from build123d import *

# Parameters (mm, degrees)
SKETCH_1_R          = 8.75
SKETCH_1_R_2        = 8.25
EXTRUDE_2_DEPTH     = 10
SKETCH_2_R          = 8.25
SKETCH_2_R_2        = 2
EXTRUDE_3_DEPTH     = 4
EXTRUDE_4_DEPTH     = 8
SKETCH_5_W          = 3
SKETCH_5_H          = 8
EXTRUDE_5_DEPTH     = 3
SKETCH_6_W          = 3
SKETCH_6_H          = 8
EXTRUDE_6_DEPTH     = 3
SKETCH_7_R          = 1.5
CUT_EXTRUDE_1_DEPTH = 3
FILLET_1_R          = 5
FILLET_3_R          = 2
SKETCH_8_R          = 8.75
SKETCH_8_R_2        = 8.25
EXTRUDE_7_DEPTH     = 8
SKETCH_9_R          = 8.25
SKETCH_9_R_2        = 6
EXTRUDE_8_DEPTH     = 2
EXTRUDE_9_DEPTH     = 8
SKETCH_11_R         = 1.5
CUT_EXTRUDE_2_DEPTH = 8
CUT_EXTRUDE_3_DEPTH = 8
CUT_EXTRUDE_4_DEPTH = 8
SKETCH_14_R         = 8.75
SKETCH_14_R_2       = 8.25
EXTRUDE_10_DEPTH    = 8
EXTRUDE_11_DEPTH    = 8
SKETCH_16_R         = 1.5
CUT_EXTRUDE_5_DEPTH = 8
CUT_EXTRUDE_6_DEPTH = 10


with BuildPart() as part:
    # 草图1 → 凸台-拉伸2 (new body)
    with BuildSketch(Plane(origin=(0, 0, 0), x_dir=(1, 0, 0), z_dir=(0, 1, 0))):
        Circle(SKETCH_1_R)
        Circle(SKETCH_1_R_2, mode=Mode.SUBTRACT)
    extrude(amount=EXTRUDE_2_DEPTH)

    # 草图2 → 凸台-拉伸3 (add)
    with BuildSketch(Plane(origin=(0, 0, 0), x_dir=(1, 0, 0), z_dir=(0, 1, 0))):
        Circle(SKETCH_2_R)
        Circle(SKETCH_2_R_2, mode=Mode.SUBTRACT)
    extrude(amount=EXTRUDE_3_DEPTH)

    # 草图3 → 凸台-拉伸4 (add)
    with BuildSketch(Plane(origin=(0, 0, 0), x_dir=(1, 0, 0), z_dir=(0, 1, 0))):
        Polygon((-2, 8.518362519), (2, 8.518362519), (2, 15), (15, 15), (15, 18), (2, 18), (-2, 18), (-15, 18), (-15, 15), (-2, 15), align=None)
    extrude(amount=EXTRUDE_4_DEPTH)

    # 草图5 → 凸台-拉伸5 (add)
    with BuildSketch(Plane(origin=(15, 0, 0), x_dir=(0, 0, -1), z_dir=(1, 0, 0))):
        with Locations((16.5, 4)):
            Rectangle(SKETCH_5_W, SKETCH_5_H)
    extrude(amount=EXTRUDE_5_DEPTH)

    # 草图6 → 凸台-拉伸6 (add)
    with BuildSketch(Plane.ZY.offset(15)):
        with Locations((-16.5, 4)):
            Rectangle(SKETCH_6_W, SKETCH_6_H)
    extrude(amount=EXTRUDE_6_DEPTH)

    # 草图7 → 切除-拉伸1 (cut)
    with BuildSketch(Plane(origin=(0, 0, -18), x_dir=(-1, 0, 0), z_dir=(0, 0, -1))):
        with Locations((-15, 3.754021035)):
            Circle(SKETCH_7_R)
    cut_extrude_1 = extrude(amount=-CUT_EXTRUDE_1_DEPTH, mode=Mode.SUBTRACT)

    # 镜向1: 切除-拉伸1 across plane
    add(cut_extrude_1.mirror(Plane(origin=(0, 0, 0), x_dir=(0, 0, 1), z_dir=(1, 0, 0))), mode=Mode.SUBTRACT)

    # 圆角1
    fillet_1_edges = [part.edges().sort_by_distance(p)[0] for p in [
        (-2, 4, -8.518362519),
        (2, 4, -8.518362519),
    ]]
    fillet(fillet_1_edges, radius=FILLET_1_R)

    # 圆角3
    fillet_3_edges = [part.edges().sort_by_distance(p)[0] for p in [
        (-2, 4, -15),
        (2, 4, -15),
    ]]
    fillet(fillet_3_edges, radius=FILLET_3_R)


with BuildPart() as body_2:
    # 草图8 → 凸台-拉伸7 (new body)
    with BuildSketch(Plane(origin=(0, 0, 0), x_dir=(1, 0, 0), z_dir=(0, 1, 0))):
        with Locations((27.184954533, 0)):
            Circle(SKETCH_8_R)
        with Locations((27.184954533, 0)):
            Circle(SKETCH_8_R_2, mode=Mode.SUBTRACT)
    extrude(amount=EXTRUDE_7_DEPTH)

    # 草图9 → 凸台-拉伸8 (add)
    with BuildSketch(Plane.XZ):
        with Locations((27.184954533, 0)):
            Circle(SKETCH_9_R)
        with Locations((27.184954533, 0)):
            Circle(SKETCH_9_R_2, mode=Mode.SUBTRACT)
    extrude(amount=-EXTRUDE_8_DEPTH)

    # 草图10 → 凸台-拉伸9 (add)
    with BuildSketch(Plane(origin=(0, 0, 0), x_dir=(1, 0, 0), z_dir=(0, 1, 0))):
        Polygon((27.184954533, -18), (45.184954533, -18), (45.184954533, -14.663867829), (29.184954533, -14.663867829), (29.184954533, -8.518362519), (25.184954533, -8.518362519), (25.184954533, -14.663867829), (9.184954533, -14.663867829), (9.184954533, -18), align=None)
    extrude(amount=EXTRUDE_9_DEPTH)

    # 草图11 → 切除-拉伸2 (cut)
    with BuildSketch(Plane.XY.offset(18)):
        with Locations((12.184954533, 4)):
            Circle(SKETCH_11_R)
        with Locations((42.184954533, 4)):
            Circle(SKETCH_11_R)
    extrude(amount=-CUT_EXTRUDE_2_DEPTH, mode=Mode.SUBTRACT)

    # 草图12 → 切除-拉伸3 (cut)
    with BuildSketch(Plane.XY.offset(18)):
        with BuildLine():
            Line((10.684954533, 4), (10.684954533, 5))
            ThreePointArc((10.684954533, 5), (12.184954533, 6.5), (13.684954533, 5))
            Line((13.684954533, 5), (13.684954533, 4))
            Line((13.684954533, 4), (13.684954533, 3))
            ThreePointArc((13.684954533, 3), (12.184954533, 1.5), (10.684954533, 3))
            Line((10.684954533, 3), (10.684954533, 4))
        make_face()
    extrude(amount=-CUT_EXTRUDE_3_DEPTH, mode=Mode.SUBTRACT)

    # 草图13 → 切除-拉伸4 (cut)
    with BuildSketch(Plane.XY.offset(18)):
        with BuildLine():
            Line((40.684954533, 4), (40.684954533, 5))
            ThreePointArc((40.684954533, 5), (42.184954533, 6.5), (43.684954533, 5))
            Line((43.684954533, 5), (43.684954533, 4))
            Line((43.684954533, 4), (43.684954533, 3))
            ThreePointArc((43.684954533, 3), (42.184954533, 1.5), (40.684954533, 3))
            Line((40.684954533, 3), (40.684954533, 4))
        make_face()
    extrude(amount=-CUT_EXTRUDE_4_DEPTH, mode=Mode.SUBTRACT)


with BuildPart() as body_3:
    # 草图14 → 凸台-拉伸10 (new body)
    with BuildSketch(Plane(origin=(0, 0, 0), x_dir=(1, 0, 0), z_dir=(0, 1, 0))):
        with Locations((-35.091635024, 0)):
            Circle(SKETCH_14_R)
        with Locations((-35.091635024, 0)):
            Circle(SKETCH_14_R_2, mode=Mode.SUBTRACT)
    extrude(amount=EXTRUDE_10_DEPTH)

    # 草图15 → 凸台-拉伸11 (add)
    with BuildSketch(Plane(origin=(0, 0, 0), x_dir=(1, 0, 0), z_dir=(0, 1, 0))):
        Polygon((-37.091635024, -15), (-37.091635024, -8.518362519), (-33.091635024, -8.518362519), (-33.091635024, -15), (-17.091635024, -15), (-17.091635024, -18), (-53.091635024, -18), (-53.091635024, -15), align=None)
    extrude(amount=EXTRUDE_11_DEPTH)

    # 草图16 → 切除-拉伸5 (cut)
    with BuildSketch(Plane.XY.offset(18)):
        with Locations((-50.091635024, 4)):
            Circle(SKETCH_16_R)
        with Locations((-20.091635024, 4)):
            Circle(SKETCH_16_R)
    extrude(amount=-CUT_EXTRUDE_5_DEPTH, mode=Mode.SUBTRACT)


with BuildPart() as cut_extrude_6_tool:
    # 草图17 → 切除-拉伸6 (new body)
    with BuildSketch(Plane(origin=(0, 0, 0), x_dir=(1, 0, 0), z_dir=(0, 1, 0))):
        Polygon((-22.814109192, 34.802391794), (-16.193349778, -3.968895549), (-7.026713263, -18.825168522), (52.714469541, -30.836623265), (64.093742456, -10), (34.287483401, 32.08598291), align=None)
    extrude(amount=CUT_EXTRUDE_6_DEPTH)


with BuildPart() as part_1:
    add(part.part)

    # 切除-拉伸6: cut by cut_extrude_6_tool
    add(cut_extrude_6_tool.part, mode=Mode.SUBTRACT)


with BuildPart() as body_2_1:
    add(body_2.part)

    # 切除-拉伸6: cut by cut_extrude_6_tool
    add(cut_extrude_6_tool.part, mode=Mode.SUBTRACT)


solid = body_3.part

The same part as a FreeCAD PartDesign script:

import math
import FreeCAD as App
import Part
import Sketcher

V = App.Vector
Q = App.Units.Quantity


def edges_at(feature, points):
    """Names of the edges that pass closest to the given points."""
    edges = feature.Shape.Edges
    near = lambda p: min(range(len(edges)), key=lambda i: edges[i].distToShape(Part.Vertex(*p))[0])
    return sorted({f"Edge{near(p) + 1}" for p in points})


def add_polygon(sketch, points):
    """Adds a closed chain of lines whose ends are joined by coincident constraints."""
    first, n = sketch.GeometryCount, len(points)
    for a, b in zip(points, points[1:] + points[:1]):
        sketch.addGeometry(Part.LineSegment(App.Vector(*a, 0), App.Vector(*b, 0)), False)
    for i in range(n):
        sketch.addConstraint(Sketcher.Constraint("Coincident", first + i, 2, first + (i + 1) % n, 1))

doc = App.newDocument("Part")
body = doc.addObject("PartDesign::Body", "Body")

# Sketch on XZ plane
sketch1 = doc.addObject("Sketcher::SketchObject", "Sketch")
body.addObject(sketch1)
sketch1.AttachmentSupport = (doc.XZ_Plane, [""])
sketch1.MapMode = "FlatFace"
sketch1.addGeometry([
    Part.Circle(V(0, 0, 0), V(0, 0, 1), 9),
    Part.Circle(V(0, 0, 0), V(0, 0, 1), 8),
], False)
sketch1.addConstraint([
    Sketcher.Constraint("Coincident", 0, 3, -1, 1),
    Sketcher.Constraint("Coincident", 1, 3, -1, 1),
    Sketcher.Constraint("Diameter", 0, Q("17.5 mm")),
    Sketcher.Constraint("Diameter", 1, Q("16.5 mm")),
])
pad1 = doc.addObject("PartDesign::Pad", "Pad")
body.addObject(pad1)
pad1.Profile = sketch1
pad1.Length = 10
pad1.Reversed = True

# Sketch on XZ plane
sketch2 = doc.addObject("Sketcher::SketchObject", "Sketch001")
body.addObject(sketch2)
sketch2.AttachmentSupport = (doc.XZ_Plane, [""])
sketch2.MapMode = "FlatFace"
sketch2.addGeometry([
    Part.Circle(V(0, 0, 0), V(0, 0, 1), 8.2),
    Part.Circle(V(0, 0, 0), V(0, 0, 1), 2),
], False)
sketch2.addConstraint([
    Sketcher.Constraint("Coincident", 0, 3, -1, 1),
    Sketcher.Constraint("Coincident", 1, 3, -1, 1),
    Sketcher.Constraint("Diameter", 1, Q("4 mm")),
    Sketcher.Constraint("Diameter", 0, Q("16.5 mm")),
])
pad2 = doc.addObject("PartDesign::Pad", "Pad001")
body.addObject(pad2)
pad2.Profile = sketch2
pad2.Length = 4
pad2.Reversed = True

# Sketch on XZ plane
sketch3 = doc.addObject("Sketcher::SketchObject", "Sketch002")
body.addObject(sketch3)
sketch3.AttachmentSupport = (doc.XZ_Plane, [""])
sketch3.MapMode = "FlatFace"
add_polygon(sketch3, [(-2, -8.5), (2, -8.5), (2, -15), (15, -15), (15, -18), (-15, -18), (-15, -15), (-2, -15)])  # lines 0-7
sketch3.addConstraint([
    Sketcher.Constraint("Horizontal", 0),
    Sketcher.Constraint("Vertical", 1),
    Sketcher.Constraint("Horizontal", 2),
    Sketcher.Constraint("Vertical", 3),
    Sketcher.Constraint("Horizontal", 4),
    Sketcher.Constraint("Vertical", 5),
    Sketcher.Constraint("Horizontal", 6),
    Sketcher.Constraint("Vertical", 7),
    Sketcher.Constraint("Symmetric", 2, 2, 5, 2, -2),
    Sketcher.Constraint("Equal", 2, 6),
    Sketcher.Constraint("DistanceX", 0, 1, 0, 2, Q("4 mm")),
    Sketcher.Constraint("DistanceX", 2, 1, 2, 2, Q("13 mm")),
    Sketcher.Constraint("DistanceY", 3, 2, 3, 1, Q("3 mm")),
    Sketcher.Constraint("DistanceY", 1, 2, -1, 1, Q("15 mm")),
    Sketcher.Constraint("DistanceY", 1, 2, 1, 1, Q("6.481637 mm")),
])
pad3 = doc.addObject("PartDesign::Pad", "Pad002")
body.addObject(pad3)
pad3.Profile = sketch3
pad3.Length = 8
pad3.Reversed = True

# Sketch on YZ plane
sketch4 = doc.addObject("Sketcher::SketchObject", "Sketch003")
body.addObject(sketch4)
sketch4.AttachmentSupport = (doc.YZ_Plane, [""])
sketch4.MapMode = "FlatFace"
sketch4.AttachmentOffset = App.Placement(V(0, 0, 15), App.Rotation())
add_polygon(sketch4, [(8, -15), (0, -15), (0, -18), (8, -18)])  # lines 0-3
sketch4.addConstraint([
    Sketcher.Constraint("Horizontal", 0),
    Sketcher.Constraint("Vertical", 1),
    Sketcher.Constraint("Horizontal", 2),
    Sketcher.Constraint("Vertical", 3),
    Sketcher.Constraint("PointOnObject", 0, 2, -2),
    Sketcher.Constraint("DistanceX", 0, 2, 0, 1, Q("8 mm")),
    Sketcher.Constraint("DistanceY", 1, 2, 1, 1, Q("3 mm")),
    Sketcher.Constraint("DistanceY", 0, 2, -1, 1, Q("15 mm")),
])
pad4 = doc.addObject("PartDesign::Pad", "Pad003")
body.addObject(pad4)
pad4.Profile = sketch4
pad4.Length = 3

# Sketch on YZ plane
sketch5 = doc.addObject("Sketcher::SketchObject", "Sketch004")
body.addObject(sketch5)
sketch5.AttachmentSupport = (doc.YZ_Plane, [""])
sketch5.MapMode = "FlatFace"
sketch5.AttachmentOffset = App.Placement(V(0, 0, -15), App.Rotation())
add_polygon(sketch5, [(8, -18), (0, -18), (0, -15), (8, -15)])  # lines 0-3
sketch5.addConstraint([
    Sketcher.Constraint("Horizontal", 0),
    Sketcher.Constraint("Vertical", 1),
    Sketcher.Constraint("Horizontal", 2),
    Sketcher.Constraint("Vertical", 3),
    Sketcher.Constraint("PointOnObject", 0, 2, -2),
    Sketcher.Constraint("DistanceX", 0, 2, 0, 1, Q("8 mm")),
    Sketcher.Constraint("DistanceY", 1, 1, 1, 2, Q("3 mm")),
    Sketcher.Constraint("DistanceY", 0, 2, -1, 1, Q("18 mm")),
])
pad5 = doc.addObject("PartDesign::Pad", "Pad004")
body.addObject(pad5)
pad5.Profile = sketch5
pad5.Length = 3
pad5.Reversed = True

# Sketch on XY plane
sketch6 = doc.addObject("Sketcher::SketchObject", "Sketch005")
body.addObject(sketch6)
sketch6.AttachmentSupport = (doc.XY_Plane, [""])
sketch6.MapMode = "FlatFace"
sketch6.AttachmentOffset = App.Placement(V(0, 0, -18), App.Rotation())
sketch6.addGeometry(Part.Circle(V(15, 3.8, 0), V(0, 0, 1), 1.5), False)
sketch6.addConstraint([
    Sketcher.Constraint("Diameter", 0, Q("3 mm")),
    Sketcher.Constraint("DistanceX", -1, 1, 0, 3, Q("15 mm")),
    Sketcher.Constraint("DistanceY", -1, 1, 0, 3, Q("3.754021 mm")),
])
pocket1 = doc.addObject("PartDesign::Pocket", "Pocket")
body.addObject(pocket1)
pocket1.Profile = sketch6
pocket1.Length = 3
pocket1.Reversed = True
doc.recompute()

mirrored = doc.addObject("PartDesign::Mirrored", "Mirrored")
body.addObject(mirrored)
mirrored.Originals = [pocket1]
mirrored.MirrorPlane = (doc.YZ_Plane, [""])
body.Tip = mirrored
doc.recompute()

fillet = doc.addObject("PartDesign::Fillet", "Fillet")
body.addObject(fillet)
fillet.Base = (mirrored, edges_at(mirrored, [(-2, 4, -8.518), (2, 4, -8.518)]))
fillet.Radius = 5
doc.recompute()

fillet2 = doc.addObject("PartDesign::Fillet", "Fillet001")
body.addObject(fillet2)
fillet2.Base = (fillet, edges_at(fillet, [(-2, 4, -15), (2, 4, -15)]))
fillet2.Radius = 2
body2 = doc.addObject("PartDesign::Body", "Body001")

# Sketch on XZ plane
sketch7 = doc.addObject("Sketcher::SketchObject", "Sketch006")
body2.addObject(sketch7)
sketch7.AttachmentSupport = (doc.getObject("XZ_Plane001"), [""])
sketch7.MapMode = "FlatFace"
sketch7.addGeometry([
    Part.Circle(V(27, 0, 0), V(0, 0, 1), 9),
    Part.Circle(V(27, 0, 0), V(0, 0, 1), 8),
], False)
sketch7.addConstraint([
    Sketcher.Constraint("Coincident", 1, 3, 0, 3),
    Sketcher.Constraint("PointOnObject", 0, 3, -1),
    Sketcher.Constraint("Diameter", 0, Q("17.5 mm")),
    Sketcher.Constraint("Diameter", 1, Q("16.5 mm")),
    Sketcher.Constraint("DistanceX", -1, 1, 0, 3, Q("27.184955 mm")),
])
pad6 = doc.addObject("PartDesign::Pad", "Pad005")
body2.addObject(pad6)
pad6.Profile = sketch7
pad6.Length = 8
pad6.Reversed = True

# Sketch on XZ plane
sketch8 = doc.addObject("Sketcher::SketchObject", "Sketch007")
body2.addObject(sketch8)
sketch8.AttachmentSupport = (doc.getObject("XZ_Plane001"), [""])
sketch8.MapMode = "FlatFace"
sketch8.addGeometry([
    Part.Circle(V(27, 0, 0), V(0, 0, 1), 8),
    Part.Circle(V(27, 0, 0), V(0, 0, 1), 6),
], False)
sketch8.addConstraint([
    Sketcher.Constraint("Coincident", 1, 3, 0, 3),
    Sketcher.Constraint("PointOnObject", 0, 3, -1),
    Sketcher.Constraint("Diameter", 1, Q("12 mm")),
    Sketcher.Constraint("Diameter", 0, Q("16.5 mm")),
    Sketcher.Constraint("DistanceX", -1, 1, 0, 3, Q("27.184955 mm")),
])
pad7 = doc.addObject("PartDesign::Pad", "Pad006")
body2.addObject(pad7)
pad7.Profile = sketch8
pad7.Length = 2
pad7.Reversed = True

# Sketch on XZ plane
sketch9 = doc.addObject("Sketcher::SketchObject", "Sketch008")
body2.addObject(sketch9)
sketch9.AttachmentSupport = (doc.getObject("XZ_Plane001"), [""])
sketch9.MapMode = "FlatFace"
add_polygon(sketch9, [(45.2, 18), (45.2, 14.7), (29.2, 14.7), (29.2, 8.5), (25.2, 8.5), (25.2, 14.7), (9.2, 14.7), (9.2, 18)])  # lines 0-7
sketch9.addConstraint([
    Sketcher.Constraint("Vertical", 0),
    Sketcher.Constraint("Horizontal", 1),
    Sketcher.Constraint("Vertical", 2),
    Sketcher.Constraint("Horizontal", 3),
    Sketcher.Constraint("Vertical", 4),
    Sketcher.Constraint("Horizontal", 5),
    Sketcher.Constraint("Vertical", 6),
    Sketcher.Constraint("Horizontal", 7),
    Sketcher.Constraint("Horizontal", 1, 2, 4, 2),
    Sketcher.Constraint("Equal", 1, 5),
    Sketcher.Constraint("DistanceX", 1, 2, 1, 1, Q("16 mm")),
    Sketcher.Constraint("DistanceX", 3, 2, 3, 1, Q("4 mm")),
    Sketcher.Constraint("DistanceY", -1, 1, 6, 2, Q("18 mm")),
    Sketcher.Constraint("DistanceY", 0, 2, 0, 1, Q("3.336132 mm")),
    Sketcher.Constraint("DistanceY", 2, 2, 2, 1, Q("6.145505 mm")),
    Sketcher.Constraint("DistanceX", -1, 1, 0, 2, Q("45.184955 mm")),
])
pad8 = doc.addObject("PartDesign::Pad", "Pad007")
body2.addObject(pad8)
pad8.Profile = sketch9
pad8.Length = 8
pad8.Reversed = True

# Sketch on XY plane
sketch10 = doc.addObject("Sketcher::SketchObject", "Sketch009")
body2.addObject(sketch10)
sketch10.AttachmentSupport = (doc.getObject("XY_Plane001"), [""])
sketch10.MapMode = "FlatFace"
sketch10.AttachmentOffset = App.Placement(V(0, 0, 18), App.Rotation())
sketch10.addGeometry([
    Part.Circle(V(12.2, 4, 0), V(0, 0, 1), 1.5),
    Part.Circle(V(42.2, 4, 0), V(0, 0, 1), 1.5),
], False)
sketch10.addConstraint([
    Sketcher.Constraint("Equal", 0, 1),
    Sketcher.Constraint("Horizontal", 0, 3, 1, 3),
    Sketcher.Constraint("Diameter", 0, Q("3 mm")),
    Sketcher.Constraint("DistanceY", -1, 1, 0, 3, Q("4 mm")),
    Sketcher.Constraint("DistanceX", 0, 3, 1, 3, Q("30 mm")),
    Sketcher.Constraint("DistanceX", -1, 1, 0, 3, Q("12.184955 mm")),
])
pocket2 = doc.addObject("PartDesign::Pocket", "Pocket001")
body2.addObject(pocket2)
pocket2.Profile = sketch10
pocket2.Length = 8

# Sketch on XY plane
sketch11 = doc.addObject("Sketcher::SketchObject", "Sketch010")
body2.addObject(sketch11)
sketch11.AttachmentSupport = (doc.getObject("XY_Plane001"), [""])
sketch11.MapMode = "FlatFace"
sketch11.AttachmentOffset = App.Placement(V(0, 0, 18), App.Rotation())
sketch11.addGeometry([
    Part.ArcOfCircle(Part.Circle(V(12.2, 5, 0), V(0, 0, 1), 1.5), math.radians(0), math.radians(180)),
    Part.LineSegment(V(10.7, 5, 0), V(10.7, 3, 0)),
    Part.ArcOfCircle(Part.Circle(V(12.2, 3, 0), V(0, 0, 1), 1.5), math.radians(180), math.radians(360)),
    Part.LineSegment(V(13.7, 3, 0), V(13.7, 5, 0)),
], False)
sketch11.addConstraint([
    Sketcher.Constraint("Tangent", 0, 2, 1, 1),
    Sketcher.Constraint("Tangent", 1, 2, 2, 1),
    Sketcher.Constraint("Tangent", 2, 2, 3, 1),
    Sketcher.Constraint("Tangent", 3, 2, 0, 1),
    Sketcher.Constraint("Vertical", 1),
    Sketcher.Constraint("Vertical", 3),
    Sketcher.Constraint("Radius", 0, Q("1.5 mm")),
    Sketcher.Constraint("DistanceY", 1, 2, 1, 1, Q("2 mm")),
    Sketcher.Constraint("DistanceY", -1, 1, 0, 3, Q("5 mm")),
    Sketcher.Constraint("DistanceX", -1, 1, 0, 3, Q("12.184955 mm")),
])
pocket3 = doc.addObject("PartDesign::Pocket", "Pocket002")
body2.addObject(pocket3)
pocket3.Profile = sketch11
pocket3.Length = 8

# Sketch on XY plane
sketch12 = doc.addObject("Sketcher::SketchObject", "Sketch011")
body2.addObject(sketch12)
sketch12.AttachmentSupport = (doc.getObject("XY_Plane001"), [""])
sketch12.MapMode = "FlatFace"
sketch12.AttachmentOffset = App.Placement(V(0, 0, 18), App.Rotation())
sketch12.addGeometry([
    Part.ArcOfCircle(Part.Circle(V(42.2, 5, 0), V(0, 0, 1), 1.5), math.radians(0), math.radians(180)),
    Part.LineSegment(V(40.7, 5, 0), V(40.7, 3, 0)),
    Part.ArcOfCircle(Part.Circle(V(42.2, 3, 0), V(0, 0, 1), 1.5), math.radians(180), math.radians(360)),
    Part.LineSegment(V(43.7, 3, 0), V(43.7, 5, 0)),
], False)
sketch12.addConstraint([
    Sketcher.Constraint("Tangent", 0, 2, 1, 1),
    Sketcher.Constraint("Tangent", 1, 2, 2, 1),
    Sketcher.Constraint("Tangent", 2, 2, 3, 1),
    Sketcher.Constraint("Tangent", 3, 2, 0, 1),
    Sketcher.Constraint("Vertical", 1),
    Sketcher.Constraint("Vertical", 3),
    Sketcher.Constraint("Radius", 0, Q("1.5 mm")),
    Sketcher.Constraint("DistanceY", 1, 2, 1, 1, Q("2 mm")),
    Sketcher.Constraint("DistanceY", -1, 1, 0, 3, Q("5 mm")),
    Sketcher.Constraint("DistanceX", -1, 1, 0, 3, Q("42.184955 mm")),
])
pocket4 = doc.addObject("PartDesign::Pocket", "Pocket003")
body2.addObject(pocket4)
pocket4.Profile = sketch12
pocket4.Length = 8
body3 = doc.addObject("PartDesign::Body", "Body002")

# Sketch on XZ plane
sketch13 = doc.addObject("Sketcher::SketchObject", "Sketch012")
body3.addObject(sketch13)
sketch13.AttachmentSupport = (doc.getObject("XZ_Plane002"), [""])
sketch13.MapMode = "FlatFace"
sketch13.addGeometry([
    Part.Circle(V(-35, 0, 0), V(0, 0, 1), 9),
    Part.Circle(V(-35, 0, 0), V(0, 0, 1), 8),
], False)
sketch13.addConstraint([
    Sketcher.Constraint("Coincident", 1, 3, 0, 3),
    Sketcher.Constraint("PointOnObject", 0, 3, -1),
    Sketcher.Constraint("Diameter", 0, Q("17.5 mm")),
    Sketcher.Constraint("Diameter", 1, Q("16.5 mm")),
    Sketcher.Constraint("DistanceX", 0, 3, -1, 1, Q("35.091635 mm")),
])
pad9 = doc.addObject("PartDesign::Pad", "Pad008")
body3.addObject(pad9)
pad9.Profile = sketch13
pad9.Length = 8
pad9.Reversed = True

# Sketch on XZ plane
sketch14 = doc.addObject("Sketcher::SketchObject", "Sketch013")
body3.addObject(sketch14)
sketch14.AttachmentSupport = (doc.getObject("XZ_Plane002"), [""])
sketch14.MapMode = "FlatFace"
add_polygon(sketch14, [(-37.1, 8.5), (-37.1, 15), (-53.1, 15), (-53.1, 18), (-17.1, 18), (-17.1, 15), (-33.1, 15), (-33.1, 8.5)])  # lines 0-7
sketch14.addConstraint([
    Sketcher.Constraint("Vertical", 0),
    Sketcher.Constraint("Horizontal", 1),
    Sketcher.Constraint("Vertical", 2),
    Sketcher.Constraint("Horizontal", 3),
    Sketcher.Constraint("Vertical", 4),
    Sketcher.Constraint("Horizontal", 5),
    Sketcher.Constraint("Vertical", 6),
    Sketcher.Constraint("Horizontal", 7),
    Sketcher.Constraint("Horizontal", 1, 2, 4, 2),
    Sketcher.Constraint("Equal", 1, 5),
    Sketcher.Constraint("DistanceX", 1, 2, 1, 1, Q("16 mm")),
    Sketcher.Constraint("DistanceX", 3, 1, 3, 2, Q("36 mm")),
    Sketcher.Constraint("DistanceY", 2, 1, 2, 2, Q("3 mm")),
    Sketcher.Constraint("DistanceY", -1, 1, 0, 2, Q("15 mm")),
    Sketcher.Constraint("DistanceY", 0, 1, 0, 2, Q("6.481637 mm")),
    Sketcher.Constraint("DistanceX", 0, 2, -1, 1, Q("37.091635 mm")),
])
pad10 = doc.addObject("PartDesign::Pad", "Pad009")
body3.addObject(pad10)
pad10.Profile = sketch14
pad10.Length = 8
pad10.Reversed = True

# Sketch on XY plane
sketch15 = doc.addObject("Sketcher::SketchObject", "Sketch014")
body3.addObject(sketch15)
sketch15.AttachmentSupport = (doc.getObject("XY_Plane002"), [""])
sketch15.MapMode = "FlatFace"
sketch15.AttachmentOffset = App.Placement(V(0, 0, 18), App.Rotation())
sketch15.addGeometry([
    Part.Circle(V(-50.1, 4, 0), V(0, 0, 1), 1.5),
    Part.Circle(V(-20.1, 4, 0), V(0, 0, 1), 1.5),
], False)
sketch15.addConstraint([
    Sketcher.Constraint("Equal", 0, 1),
    Sketcher.Constraint("Horizontal", 0, 3, 1, 3),
    Sketcher.Constraint("Diameter", 0, Q("3 mm")),
    Sketcher.Constraint("DistanceY", -1, 1, 0, 3, Q("4 mm")),
    Sketcher.Constraint("DistanceX", 0, 3, 1, 3, Q("30 mm")),
    Sketcher.Constraint("DistanceX", 0, 3, -1, 1, Q("50.091635 mm")),
])
pocket5 = doc.addObject("PartDesign::Pocket", "Pocket004")
body3.addObject(pocket5)
pocket5.Profile = sketch15
pocket5.Length = 8
body4 = doc.addObject("PartDesign::Body", "Body003")

# Sketch on XZ plane
sketch16 = doc.addObject("Sketcher::SketchObject", "Sketch015")
body4.addObject(sketch16)
sketch16.AttachmentSupport = (doc.getObject("XZ_Plane003"), [""])
sketch16.MapMode = "FlatFace"
add_polygon(sketch16, [(-23, -35), (-16, 4), (-7, 19), (53, 31), (64, 10), (34, -32)])  # lines 0-5
sketch16.addConstraint([
    Sketcher.Constraint("DistanceY", -1, 1, 3, 2, Q("10 mm")),
    Sketcher.Constraint("Distance", 0, Q("39.332521 mm")),
    Sketcher.Constraint("Distance", 1, Q("17.456691 mm")),
    Sketcher.Constraint("Distance", 2, Q("60.936721 mm")),
    Sketcher.Constraint("Distance", 3, Q("23.741372 mm")),
    Sketcher.Constraint("DistanceX", 0, 2, -1, 1, Q("16.19335 mm")),
    Sketcher.Constraint("DistanceY", -1, 1, 1, 2, Q("18.825169 mm")),
    Sketcher.Constraint("DistanceX", -1, 1, 2, 2, Q("52.71447 mm")),
    Sketcher.Constraint("DistanceX", 5, 2, -1, 1, Q("22.814109 mm")),
    Sketcher.Constraint("DistanceY", 5, 2, -1, 1, Q("34.802392 mm")),
    Sketcher.Constraint("DistanceX", 4, 2, 3, 2, Q("29.806259 mm")),
    Sketcher.Constraint("DistanceY", 4, 2, 0, 2, Q("36.054878 mm")),
])
pad11 = doc.addObject("PartDesign::Pad", "Pad010")
body4.addObject(pad11)
pad11.Profile = sketch16
pad11.Length = 10
pad11.Reversed = True
doc.recompute()

body5 = doc.addObject("PartDesign::Body", "Body004")
body5.BaseFeature = body4
boolean = doc.addObject("PartDesign::Boolean", "Boolean")
body.addObject(boolean)
boolean.Type = "Cut"
boolean.addObjects([body5])
doc.recompute()

boolean2 = doc.addObject("PartDesign::Boolean", "Boolean001")
body2.addObject(boolean2)
boolean2.Type = "Cut"
boolean2.addObjects([body4])

doc.recompute()
